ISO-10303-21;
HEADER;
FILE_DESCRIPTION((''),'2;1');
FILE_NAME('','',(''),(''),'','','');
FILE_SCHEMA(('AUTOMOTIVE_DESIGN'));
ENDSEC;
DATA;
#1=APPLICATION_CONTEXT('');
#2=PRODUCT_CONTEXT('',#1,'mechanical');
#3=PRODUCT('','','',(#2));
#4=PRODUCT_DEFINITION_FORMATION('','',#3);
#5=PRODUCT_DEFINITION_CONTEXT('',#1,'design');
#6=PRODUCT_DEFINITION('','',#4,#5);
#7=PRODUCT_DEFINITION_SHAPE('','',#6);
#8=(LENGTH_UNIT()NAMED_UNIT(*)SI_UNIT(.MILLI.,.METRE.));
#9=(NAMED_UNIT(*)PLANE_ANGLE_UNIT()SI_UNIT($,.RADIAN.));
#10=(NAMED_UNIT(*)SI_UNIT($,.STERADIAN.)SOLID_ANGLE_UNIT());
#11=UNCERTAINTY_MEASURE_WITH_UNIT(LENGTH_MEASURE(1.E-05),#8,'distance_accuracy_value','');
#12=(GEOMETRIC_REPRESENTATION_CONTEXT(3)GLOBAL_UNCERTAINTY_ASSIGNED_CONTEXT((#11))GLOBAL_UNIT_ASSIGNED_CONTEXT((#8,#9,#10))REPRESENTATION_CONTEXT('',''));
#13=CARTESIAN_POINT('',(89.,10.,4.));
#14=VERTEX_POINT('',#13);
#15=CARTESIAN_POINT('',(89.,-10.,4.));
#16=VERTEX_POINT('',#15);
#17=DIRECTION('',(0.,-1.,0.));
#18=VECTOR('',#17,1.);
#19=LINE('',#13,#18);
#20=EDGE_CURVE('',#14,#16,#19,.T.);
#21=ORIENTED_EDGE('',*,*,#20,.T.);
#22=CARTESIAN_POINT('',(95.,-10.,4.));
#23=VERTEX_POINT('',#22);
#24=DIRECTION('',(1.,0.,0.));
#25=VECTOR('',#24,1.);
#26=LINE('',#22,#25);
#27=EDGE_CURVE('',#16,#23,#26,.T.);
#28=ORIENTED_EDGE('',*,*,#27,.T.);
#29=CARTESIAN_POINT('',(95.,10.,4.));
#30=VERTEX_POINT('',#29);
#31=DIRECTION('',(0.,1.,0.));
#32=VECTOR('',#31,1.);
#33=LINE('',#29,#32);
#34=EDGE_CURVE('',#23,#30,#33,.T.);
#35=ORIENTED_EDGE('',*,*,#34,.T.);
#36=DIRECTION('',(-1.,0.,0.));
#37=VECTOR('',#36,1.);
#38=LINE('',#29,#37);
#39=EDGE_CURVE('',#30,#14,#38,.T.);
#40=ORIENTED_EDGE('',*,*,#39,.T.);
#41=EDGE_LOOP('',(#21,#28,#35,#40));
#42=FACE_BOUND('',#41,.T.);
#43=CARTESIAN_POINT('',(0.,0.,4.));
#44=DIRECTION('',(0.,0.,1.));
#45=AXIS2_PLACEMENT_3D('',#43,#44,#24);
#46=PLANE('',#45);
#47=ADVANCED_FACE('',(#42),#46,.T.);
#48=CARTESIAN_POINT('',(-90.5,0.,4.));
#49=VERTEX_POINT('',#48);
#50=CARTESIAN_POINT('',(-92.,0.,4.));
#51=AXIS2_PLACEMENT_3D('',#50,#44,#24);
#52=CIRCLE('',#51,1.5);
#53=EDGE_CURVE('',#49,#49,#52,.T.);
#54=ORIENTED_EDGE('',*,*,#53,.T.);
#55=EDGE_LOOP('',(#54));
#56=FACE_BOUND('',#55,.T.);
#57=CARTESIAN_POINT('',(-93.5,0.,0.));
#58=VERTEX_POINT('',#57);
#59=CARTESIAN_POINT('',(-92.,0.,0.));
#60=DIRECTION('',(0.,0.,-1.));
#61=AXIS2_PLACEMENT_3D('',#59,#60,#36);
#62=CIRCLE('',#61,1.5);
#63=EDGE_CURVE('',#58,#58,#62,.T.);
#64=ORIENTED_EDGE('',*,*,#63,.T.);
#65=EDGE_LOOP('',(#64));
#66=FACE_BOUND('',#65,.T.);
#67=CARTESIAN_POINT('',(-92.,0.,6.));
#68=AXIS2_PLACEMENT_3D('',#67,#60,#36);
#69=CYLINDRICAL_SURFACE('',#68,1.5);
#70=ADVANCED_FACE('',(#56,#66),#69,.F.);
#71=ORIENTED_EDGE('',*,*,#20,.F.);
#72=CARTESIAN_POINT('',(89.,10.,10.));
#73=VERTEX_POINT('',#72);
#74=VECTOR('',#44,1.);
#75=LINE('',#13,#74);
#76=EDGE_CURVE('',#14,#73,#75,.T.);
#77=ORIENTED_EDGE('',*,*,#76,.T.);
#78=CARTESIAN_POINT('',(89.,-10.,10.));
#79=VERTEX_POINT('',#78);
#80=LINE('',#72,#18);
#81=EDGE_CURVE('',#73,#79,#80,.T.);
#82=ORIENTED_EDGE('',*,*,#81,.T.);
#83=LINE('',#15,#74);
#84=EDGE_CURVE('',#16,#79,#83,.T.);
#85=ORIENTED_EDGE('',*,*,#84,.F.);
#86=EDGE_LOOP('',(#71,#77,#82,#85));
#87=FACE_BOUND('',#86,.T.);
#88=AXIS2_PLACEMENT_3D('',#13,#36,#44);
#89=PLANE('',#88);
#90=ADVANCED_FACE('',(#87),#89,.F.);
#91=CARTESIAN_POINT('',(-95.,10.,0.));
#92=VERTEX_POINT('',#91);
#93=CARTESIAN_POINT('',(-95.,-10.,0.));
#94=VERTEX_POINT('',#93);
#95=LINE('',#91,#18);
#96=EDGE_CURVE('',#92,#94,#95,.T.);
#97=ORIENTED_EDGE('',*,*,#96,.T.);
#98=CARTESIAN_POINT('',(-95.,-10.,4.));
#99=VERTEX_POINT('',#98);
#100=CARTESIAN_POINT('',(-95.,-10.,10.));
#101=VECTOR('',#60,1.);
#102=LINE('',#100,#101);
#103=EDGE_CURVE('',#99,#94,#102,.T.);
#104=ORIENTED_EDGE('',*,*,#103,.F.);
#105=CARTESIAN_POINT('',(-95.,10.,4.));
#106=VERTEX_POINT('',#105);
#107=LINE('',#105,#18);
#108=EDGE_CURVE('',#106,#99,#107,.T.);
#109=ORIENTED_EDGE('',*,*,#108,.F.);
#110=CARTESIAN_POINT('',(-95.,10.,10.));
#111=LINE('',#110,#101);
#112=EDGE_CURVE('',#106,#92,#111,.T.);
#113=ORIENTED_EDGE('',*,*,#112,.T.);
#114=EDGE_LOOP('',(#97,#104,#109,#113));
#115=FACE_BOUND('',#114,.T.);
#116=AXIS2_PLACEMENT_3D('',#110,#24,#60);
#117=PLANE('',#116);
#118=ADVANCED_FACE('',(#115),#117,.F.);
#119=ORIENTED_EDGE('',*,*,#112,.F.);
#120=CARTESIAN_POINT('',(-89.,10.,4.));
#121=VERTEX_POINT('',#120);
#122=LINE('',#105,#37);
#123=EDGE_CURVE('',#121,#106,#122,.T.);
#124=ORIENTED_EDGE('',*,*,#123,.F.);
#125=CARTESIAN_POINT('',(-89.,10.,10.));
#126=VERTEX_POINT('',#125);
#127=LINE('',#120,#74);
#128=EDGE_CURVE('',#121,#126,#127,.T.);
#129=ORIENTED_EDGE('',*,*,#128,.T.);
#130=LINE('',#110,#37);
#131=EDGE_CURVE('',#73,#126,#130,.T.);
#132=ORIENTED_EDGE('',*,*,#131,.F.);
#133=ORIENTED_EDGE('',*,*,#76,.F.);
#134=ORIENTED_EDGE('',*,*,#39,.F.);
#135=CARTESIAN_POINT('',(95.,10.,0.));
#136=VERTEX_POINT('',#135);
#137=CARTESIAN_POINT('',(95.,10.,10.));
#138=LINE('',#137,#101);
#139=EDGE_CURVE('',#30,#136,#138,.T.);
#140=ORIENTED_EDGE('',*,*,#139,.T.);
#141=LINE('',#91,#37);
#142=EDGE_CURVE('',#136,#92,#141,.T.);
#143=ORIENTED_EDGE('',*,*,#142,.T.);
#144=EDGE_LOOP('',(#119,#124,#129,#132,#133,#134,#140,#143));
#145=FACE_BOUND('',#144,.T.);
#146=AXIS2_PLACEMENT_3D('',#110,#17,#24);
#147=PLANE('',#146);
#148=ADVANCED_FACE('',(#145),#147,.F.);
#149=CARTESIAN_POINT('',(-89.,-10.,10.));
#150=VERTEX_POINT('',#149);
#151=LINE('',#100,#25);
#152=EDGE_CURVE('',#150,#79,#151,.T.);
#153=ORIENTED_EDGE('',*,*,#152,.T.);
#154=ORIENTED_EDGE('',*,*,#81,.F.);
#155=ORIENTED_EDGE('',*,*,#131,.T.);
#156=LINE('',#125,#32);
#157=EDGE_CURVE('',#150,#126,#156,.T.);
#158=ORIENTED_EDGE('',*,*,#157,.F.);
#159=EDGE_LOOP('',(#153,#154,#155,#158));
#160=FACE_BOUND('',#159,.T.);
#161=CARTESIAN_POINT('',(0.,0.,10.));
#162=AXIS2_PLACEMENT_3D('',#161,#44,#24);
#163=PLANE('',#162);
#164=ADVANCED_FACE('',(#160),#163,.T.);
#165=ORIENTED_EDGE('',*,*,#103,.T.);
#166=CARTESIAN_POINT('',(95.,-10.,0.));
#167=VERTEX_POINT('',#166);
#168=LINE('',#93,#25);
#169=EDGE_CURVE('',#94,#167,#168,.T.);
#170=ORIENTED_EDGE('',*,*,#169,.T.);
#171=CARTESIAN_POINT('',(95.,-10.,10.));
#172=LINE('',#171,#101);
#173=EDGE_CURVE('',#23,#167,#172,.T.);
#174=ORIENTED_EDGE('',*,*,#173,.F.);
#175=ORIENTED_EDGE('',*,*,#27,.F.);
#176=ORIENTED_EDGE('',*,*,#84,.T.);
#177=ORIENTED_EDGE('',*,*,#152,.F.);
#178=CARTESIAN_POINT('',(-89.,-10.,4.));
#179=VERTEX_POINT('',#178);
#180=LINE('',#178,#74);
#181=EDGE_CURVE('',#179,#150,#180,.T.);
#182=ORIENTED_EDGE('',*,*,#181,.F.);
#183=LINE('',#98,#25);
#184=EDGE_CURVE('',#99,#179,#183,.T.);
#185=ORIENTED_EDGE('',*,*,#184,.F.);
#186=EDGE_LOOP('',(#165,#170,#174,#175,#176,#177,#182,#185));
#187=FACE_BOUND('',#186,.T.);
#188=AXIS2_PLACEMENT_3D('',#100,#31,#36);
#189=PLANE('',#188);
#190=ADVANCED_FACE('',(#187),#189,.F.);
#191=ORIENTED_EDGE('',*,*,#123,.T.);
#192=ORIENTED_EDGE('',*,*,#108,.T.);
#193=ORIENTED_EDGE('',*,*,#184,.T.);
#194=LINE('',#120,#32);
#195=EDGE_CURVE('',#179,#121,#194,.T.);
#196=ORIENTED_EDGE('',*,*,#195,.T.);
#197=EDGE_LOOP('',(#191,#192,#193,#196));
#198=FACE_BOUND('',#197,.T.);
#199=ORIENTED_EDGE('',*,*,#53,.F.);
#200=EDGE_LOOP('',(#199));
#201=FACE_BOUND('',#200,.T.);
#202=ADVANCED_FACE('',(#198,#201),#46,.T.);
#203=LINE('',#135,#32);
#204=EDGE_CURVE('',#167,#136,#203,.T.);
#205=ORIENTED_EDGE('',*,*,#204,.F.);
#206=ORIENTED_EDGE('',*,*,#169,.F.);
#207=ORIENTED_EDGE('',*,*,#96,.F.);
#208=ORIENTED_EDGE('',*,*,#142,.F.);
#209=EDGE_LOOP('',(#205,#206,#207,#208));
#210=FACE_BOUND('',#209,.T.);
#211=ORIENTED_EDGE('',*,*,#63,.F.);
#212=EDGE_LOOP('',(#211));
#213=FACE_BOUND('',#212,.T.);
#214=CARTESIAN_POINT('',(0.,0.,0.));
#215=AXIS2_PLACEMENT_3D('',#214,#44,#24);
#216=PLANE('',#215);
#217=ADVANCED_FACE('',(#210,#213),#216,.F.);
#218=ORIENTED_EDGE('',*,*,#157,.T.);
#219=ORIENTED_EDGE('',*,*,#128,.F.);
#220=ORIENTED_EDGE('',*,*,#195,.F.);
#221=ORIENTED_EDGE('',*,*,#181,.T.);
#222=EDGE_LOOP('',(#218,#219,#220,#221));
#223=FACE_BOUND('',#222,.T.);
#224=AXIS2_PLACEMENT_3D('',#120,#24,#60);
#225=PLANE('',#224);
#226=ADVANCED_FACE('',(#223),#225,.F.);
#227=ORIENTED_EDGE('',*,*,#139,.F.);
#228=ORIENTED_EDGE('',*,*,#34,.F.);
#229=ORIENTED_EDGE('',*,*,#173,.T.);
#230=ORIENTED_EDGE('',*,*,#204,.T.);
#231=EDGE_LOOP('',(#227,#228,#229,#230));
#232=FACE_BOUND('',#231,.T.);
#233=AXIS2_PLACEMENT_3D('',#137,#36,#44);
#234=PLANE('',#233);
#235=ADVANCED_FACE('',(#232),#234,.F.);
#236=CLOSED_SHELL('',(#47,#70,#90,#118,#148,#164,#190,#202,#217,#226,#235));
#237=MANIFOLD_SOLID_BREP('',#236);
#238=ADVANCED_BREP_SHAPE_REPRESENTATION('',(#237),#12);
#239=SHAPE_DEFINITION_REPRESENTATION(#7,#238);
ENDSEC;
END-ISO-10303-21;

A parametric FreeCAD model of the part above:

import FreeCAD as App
import Part
import Sketcher
Q = App.Units.Quantity

doc = App.newDocument("Part")
body = doc.addObject("PartDesign::Body", "Body")

# Sketch on XY plane
sketch1 = doc.addObject("Sketcher::SketchObject", "Sketch")
body.addObject(sketch1)
sketch1.AttachmentSupport = (doc.XY_Plane, [""])
sketch1.MapMode = "FlatFace"
sketch1.addGeometry([
    Part.LineSegment(App.Vector(-95, 10, 0), App.Vector(-95, -10, 0)),
    Part.LineSegment(App.Vector(-95, -10, 0), App.Vector(95, -10, 0)),
    Part.LineSegment(App.Vector(95, -10, 0), App.Vector(95, 10, 0)),
    Part.LineSegment(App.Vector(95, 10, 0), App.Vector(-95, 10, 0)),
], False)
sketch1.addConstraint([
    Sketcher.Constraint("Coincident", 0, 2, 1, 1),
    Sketcher.Constraint("Coincident", 1, 2, 2, 1),
    Sketcher.Constraint("Coincident", 2, 2, 3, 1),
    Sketcher.Constraint("Coincident", 3, 2, 0, 1),
    Sketcher.Constraint("Vertical", 0),
    Sketcher.Constraint("Horizontal", 1),
    Sketcher.Constraint("Vertical", 2),
    Sketcher.Constraint("Horizontal", 3),
    Sketcher.Constraint("Symmetric", 0, 2, 2, 2, -1, 1),
    Sketcher.Constraint("DistanceX", 1, 1, 1, 2, Q("190 mm")),
    Sketcher.Constraint("DistanceY", 0, 2, 0, 1, Q("20 mm")),
])
pad1 = doc.addObject("PartDesign::Pad", "Pad")
body.addObject(pad1)
pad1.Profile = sketch1
pad1.Length = 10

# Sketch on XY plane
sketch2 = doc.addObject("Sketcher::SketchObject", "Sketch001")
body.addObject(sketch2)
sketch2.AttachmentSupport = (doc.XY_Plane, [""])
sketch2.MapMode = "FlatFace"
sketch2.AttachmentOffset = App.Placement(App.Vector(0, 0, 10), App.Rotation())
sketch2.addGeometry([
    Part.LineSegment(App.Vector(-95, 10, 0), App.Vector(-95, -10, 0)),  # 0
    Part.LineSegment(App.Vector(-95, -10, 0), App.Vector(-89, -10, 0)),  # 1
    Part.LineSegment(App.Vector(-89, -10, 0), App.Vector(-89, 10, 0)),  # 2
    Part.LineSegment(App.Vector(-89, 10, 0), App.Vector(-95, 10, 0)),  # 3
    Part.LineSegment(App.Vector(89, 10, 0), App.Vector(89, -10, 0)),  # 4
    Part.LineSegment(App.Vector(89, -10, 0), App.Vector(95, -10, 0)),  # 5
    Part.LineSegment(App.Vector(95, -10, 0), App.Vector(95, 10, 0)),  # 6
    Part.LineSegment(App.Vector(95, 10, 0), App.Vector(89, 10, 0)),  # 7
], False)
sketch2.addConstraint([
    Sketcher.Constraint("Coincident", 0, 2, 1, 1),
    Sketcher.Constraint("Coincident", 1, 2, 2, 1),
    Sketcher.Constraint("Coincident", 2, 2, 3, 1),
    Sketcher.Constraint("Coincident", 3, 2, 0, 1),
    Sketcher.Constraint("Coincident", 4, 2, 5, 1),
    Sketcher.Constraint("Coincident", 5, 2, 6, 1),
    Sketcher.Constraint("Coincident", 6, 2, 7, 1),
    Sketcher.Constraint("Coincident", 7, 2, 4, 1),
    Sketcher.Constraint("Vertical", 0),
    Sketcher.Constraint("Horizontal", 1),
    Sketcher.Constraint("Vertical", 2),
    Sketcher.Constraint("Horizontal", 3),
    Sketcher.Constraint("Vertical", 4),
    Sketcher.Constraint("Horizontal", 5),
    Sketcher.Constraint("Vertical", 6),
    Sketcher.Constraint("Horizontal", 7),
    Sketcher.Constraint("Symmetric", 2, 2, 4, 2, -1, 1),
    Sketcher.Constraint("Symmetric", 0, 2, 6, 2, -1, 1),
    Sketcher.Constraint("Horizontal", 1, 2, 4, 2),
    Sketcher.Constraint("DistanceX", 1, 1, 1, 2, Q("6 mm")),
    Sketcher.Constraint("DistanceY", 0, 2, 0, 1, Q("20 mm")),
    Sketcher.Constraint("DistanceX", 0, 2, -1, 1, Q("95 mm")),
])
pocket1 = doc.addObject("PartDesign::Pocket", "Pocket")
body.addObject(pocket1)
pocket1.Profile = sketch2
pocket1.Length = 6

# Sketch on XY plane
sketch3 = doc.addObject("Sketcher::SketchObject", "Sketch002")
body.addObject(sketch3)
sketch3.AttachmentSupport = (doc.XY_Plane, [""])
sketch3.MapMode = "FlatFace"
sketch3.addGeometry(Part.Circle(App.Vector(-92, 0, 0), App.Vector(0, 0, 1), 1.5), False)
sketch3.addConstraint([
    Sketcher.Constraint("PointOnObject", 0, 3, -1),
    Sketcher.Constraint("Diameter", 0, Q("3 mm")),
    Sketcher.Constraint("DistanceX", 0, 3, -1, 1, Q("92 mm")),
])
pocket2 = doc.addObject("PartDesign::Pocket", "Pocket001")
body.addObject(pocket2)
pocket2.Profile = sketch3
pocket2.Length = 6
pocket2.Reversed = True

doc.recompute()
